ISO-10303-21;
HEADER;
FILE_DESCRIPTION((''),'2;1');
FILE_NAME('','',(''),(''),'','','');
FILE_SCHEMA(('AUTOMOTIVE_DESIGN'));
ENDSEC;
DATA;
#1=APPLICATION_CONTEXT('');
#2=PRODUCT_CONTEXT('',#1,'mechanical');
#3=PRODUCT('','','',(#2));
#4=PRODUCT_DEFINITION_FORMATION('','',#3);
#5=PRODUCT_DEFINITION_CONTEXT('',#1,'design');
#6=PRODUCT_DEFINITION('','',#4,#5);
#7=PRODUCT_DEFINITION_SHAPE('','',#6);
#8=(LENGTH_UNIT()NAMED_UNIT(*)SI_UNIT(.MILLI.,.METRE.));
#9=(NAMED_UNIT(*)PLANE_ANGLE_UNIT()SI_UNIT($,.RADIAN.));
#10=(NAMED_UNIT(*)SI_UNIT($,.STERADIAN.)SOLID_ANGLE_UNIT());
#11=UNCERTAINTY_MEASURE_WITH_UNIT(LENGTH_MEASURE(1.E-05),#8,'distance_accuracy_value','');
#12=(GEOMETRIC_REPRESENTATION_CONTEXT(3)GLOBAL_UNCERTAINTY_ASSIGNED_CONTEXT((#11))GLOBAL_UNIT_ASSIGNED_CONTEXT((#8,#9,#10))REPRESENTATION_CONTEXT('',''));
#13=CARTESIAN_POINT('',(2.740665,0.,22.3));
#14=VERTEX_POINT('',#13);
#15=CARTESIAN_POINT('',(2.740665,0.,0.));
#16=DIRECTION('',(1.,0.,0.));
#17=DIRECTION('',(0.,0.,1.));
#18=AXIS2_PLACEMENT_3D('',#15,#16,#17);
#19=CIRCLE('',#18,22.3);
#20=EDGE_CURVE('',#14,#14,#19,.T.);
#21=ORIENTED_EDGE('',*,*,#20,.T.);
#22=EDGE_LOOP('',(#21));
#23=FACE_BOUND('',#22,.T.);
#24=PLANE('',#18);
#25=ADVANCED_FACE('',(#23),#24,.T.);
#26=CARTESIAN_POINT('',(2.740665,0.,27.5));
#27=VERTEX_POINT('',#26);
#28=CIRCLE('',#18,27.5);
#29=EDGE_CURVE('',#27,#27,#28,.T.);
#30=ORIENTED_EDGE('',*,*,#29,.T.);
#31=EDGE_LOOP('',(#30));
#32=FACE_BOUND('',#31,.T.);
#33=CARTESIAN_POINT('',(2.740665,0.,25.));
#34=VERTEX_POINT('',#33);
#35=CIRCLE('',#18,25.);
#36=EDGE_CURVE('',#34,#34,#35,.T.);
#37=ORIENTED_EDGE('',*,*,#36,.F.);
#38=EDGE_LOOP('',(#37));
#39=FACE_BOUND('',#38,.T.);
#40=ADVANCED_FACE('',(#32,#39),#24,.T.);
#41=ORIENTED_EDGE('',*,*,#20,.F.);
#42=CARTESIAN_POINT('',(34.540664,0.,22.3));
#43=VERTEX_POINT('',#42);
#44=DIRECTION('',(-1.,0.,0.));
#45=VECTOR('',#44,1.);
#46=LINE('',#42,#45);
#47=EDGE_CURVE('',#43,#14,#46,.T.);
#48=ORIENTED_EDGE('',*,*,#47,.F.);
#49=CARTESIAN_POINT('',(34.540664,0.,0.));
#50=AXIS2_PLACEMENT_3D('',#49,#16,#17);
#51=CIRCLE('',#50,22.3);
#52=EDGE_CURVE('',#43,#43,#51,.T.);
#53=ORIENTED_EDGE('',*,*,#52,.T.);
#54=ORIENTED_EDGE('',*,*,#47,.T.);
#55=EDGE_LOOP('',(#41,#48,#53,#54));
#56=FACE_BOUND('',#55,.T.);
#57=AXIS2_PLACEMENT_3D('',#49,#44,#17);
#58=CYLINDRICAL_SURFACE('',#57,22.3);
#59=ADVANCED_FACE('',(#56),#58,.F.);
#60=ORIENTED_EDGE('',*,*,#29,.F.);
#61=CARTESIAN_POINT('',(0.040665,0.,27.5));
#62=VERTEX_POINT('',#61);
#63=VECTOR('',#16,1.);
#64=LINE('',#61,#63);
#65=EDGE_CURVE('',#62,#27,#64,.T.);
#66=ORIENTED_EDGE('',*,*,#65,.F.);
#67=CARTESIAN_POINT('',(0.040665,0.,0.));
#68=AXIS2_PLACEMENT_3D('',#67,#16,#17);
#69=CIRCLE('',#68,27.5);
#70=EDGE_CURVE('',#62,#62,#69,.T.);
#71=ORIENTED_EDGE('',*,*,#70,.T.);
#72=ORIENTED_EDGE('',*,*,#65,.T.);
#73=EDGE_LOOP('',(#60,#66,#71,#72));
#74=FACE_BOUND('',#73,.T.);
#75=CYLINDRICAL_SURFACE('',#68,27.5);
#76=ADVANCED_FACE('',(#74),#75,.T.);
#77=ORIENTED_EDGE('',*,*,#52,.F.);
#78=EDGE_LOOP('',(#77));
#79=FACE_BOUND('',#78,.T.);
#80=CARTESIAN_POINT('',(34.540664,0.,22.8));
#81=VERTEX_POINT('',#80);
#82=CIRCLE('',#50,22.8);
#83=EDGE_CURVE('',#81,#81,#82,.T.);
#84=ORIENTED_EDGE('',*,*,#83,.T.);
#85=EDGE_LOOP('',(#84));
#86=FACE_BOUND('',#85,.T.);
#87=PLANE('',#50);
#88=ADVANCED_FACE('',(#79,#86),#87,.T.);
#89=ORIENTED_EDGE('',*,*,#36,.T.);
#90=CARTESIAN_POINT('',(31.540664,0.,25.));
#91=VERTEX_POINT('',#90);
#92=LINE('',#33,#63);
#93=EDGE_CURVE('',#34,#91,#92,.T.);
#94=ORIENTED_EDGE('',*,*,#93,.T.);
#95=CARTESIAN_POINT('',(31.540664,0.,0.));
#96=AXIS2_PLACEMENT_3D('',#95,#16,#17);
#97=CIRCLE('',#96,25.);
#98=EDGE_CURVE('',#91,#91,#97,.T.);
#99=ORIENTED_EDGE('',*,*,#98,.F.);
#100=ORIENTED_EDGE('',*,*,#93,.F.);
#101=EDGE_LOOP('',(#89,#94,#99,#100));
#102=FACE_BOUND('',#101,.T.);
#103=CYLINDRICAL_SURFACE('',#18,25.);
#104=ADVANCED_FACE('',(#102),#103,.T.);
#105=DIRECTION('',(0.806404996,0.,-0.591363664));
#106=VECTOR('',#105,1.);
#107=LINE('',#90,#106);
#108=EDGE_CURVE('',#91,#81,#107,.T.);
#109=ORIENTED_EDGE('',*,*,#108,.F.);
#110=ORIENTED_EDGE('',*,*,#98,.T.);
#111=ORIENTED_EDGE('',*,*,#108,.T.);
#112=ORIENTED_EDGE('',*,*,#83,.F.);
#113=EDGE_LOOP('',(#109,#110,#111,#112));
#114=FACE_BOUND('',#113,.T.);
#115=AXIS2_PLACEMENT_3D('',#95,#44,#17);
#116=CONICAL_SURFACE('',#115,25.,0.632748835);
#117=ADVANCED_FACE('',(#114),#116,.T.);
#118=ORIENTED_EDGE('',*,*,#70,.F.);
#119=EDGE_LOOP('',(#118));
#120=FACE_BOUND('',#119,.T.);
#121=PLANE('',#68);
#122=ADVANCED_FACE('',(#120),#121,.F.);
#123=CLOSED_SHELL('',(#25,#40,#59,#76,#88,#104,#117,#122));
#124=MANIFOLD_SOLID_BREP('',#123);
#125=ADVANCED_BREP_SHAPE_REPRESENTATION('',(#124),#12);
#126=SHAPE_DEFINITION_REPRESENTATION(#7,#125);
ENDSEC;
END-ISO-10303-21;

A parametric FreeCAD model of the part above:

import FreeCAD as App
import Part
import Sketcher

V = App.Vector
Q = App.Units.Quantity


def add_polygon(sketch, points):
    """Adds a closed chain of lines whose ends are joined by coincident constraints."""
    first, n = sketch.GeometryCount, len(points)
    for a, b in zip(points, points[1:] + points[:1]):
        sketch.addGeometry(Part.LineSegment(App.Vector(*a, 0), App.Vector(*b, 0)), False)
    for i in range(n):
        sketch.addConstraint(Sketcher.Constraint("Coincident", first + i, 2, first + (i + 1) % n, 1))

doc = App.newDocument("Part")
body = doc.addObject("PartDesign::Body", "Body")

sketch1 = body.newObject("Sketcher::SketchObject", "Sketch")
sketch1.AttachmentSupport = (doc.getObject("XZ_Plane"), [""])
sketch1.MapMode = "FlatFace"
add_polygon(sketch1, [(0.040665, 27.5), (0.040665, 0), (2.740665, 0), (2.740665, 22.3), (34.540664, 22.3), (34.540664, 22.8), (31.540664, 25), (2.740665, 25), (2.740665, 27.5)])
sketch1.addConstraint(Sketcher.Constraint("Vertical", 0))
sketch1.addConstraint(Sketcher.Constraint("Horizontal", 1))
sketch1.addConstraint(Sketcher.Constraint("Vertical", 2))
sketch1.addConstraint(Sketcher.Constraint("Horizontal", 3))
sketch1.addConstraint(Sketcher.Constraint("Vertical", 4))
sketch1.addConstraint(Sketcher.Constraint("Horizontal", 6))
sketch1.addConstraint(Sketcher.Constraint("Vertical", 7))
sketch1.addConstraint(Sketcher.Constraint("Horizontal", 8))
sketch1.addConstraint(Sketcher.Constraint("PointOnObject", 0, 2, -1))
sketch1.addConstraint(Sketcher.Constraint("Vertical", 2, 2, 6, 2))
sketch1.addConstraint(Sketcher.Constraint("DistanceX", 1, 1, 1, 2, Q("2.7 mm")))
sketch1.addConstraint(Sketcher.Constraint("DistanceX", 3, 1, 3, 2, Q("31.799999 mm")))
sketch1.addConstraint(Sketcher.Constraint("DistanceX", 6, 2, 6, 1, Q("28.799999 mm")))
sketch1.addConstraint(Sketcher.Constraint("DistanceY", 0, 2, 0, 1, Q("27.5 mm")))
sketch1.addConstraint(Sketcher.Constraint("DistanceY", 2, 1, 2, 2, Q("22.3 mm")))
sketch1.addConstraint(Sketcher.Constraint("DistanceY", 4, 1, 4, 2, Q("0.5 mm")))
sketch1.addConstraint(Sketcher.Constraint("DistanceY", 7, 1, 7, 2, Q("2.5 mm")))
sketch1.addConstraint(Sketcher.Constraint("DistanceX", -1, 1, 0, 2, Q("0.040665 mm")))
revolution = body.newObject("PartDesign::Revolution", "Revolution")
revolution.Profile = sketch1
revolution.ReferenceAxis = (sketch1, ["H_Axis"])
revolution.Angle = 360

doc.recompute()
